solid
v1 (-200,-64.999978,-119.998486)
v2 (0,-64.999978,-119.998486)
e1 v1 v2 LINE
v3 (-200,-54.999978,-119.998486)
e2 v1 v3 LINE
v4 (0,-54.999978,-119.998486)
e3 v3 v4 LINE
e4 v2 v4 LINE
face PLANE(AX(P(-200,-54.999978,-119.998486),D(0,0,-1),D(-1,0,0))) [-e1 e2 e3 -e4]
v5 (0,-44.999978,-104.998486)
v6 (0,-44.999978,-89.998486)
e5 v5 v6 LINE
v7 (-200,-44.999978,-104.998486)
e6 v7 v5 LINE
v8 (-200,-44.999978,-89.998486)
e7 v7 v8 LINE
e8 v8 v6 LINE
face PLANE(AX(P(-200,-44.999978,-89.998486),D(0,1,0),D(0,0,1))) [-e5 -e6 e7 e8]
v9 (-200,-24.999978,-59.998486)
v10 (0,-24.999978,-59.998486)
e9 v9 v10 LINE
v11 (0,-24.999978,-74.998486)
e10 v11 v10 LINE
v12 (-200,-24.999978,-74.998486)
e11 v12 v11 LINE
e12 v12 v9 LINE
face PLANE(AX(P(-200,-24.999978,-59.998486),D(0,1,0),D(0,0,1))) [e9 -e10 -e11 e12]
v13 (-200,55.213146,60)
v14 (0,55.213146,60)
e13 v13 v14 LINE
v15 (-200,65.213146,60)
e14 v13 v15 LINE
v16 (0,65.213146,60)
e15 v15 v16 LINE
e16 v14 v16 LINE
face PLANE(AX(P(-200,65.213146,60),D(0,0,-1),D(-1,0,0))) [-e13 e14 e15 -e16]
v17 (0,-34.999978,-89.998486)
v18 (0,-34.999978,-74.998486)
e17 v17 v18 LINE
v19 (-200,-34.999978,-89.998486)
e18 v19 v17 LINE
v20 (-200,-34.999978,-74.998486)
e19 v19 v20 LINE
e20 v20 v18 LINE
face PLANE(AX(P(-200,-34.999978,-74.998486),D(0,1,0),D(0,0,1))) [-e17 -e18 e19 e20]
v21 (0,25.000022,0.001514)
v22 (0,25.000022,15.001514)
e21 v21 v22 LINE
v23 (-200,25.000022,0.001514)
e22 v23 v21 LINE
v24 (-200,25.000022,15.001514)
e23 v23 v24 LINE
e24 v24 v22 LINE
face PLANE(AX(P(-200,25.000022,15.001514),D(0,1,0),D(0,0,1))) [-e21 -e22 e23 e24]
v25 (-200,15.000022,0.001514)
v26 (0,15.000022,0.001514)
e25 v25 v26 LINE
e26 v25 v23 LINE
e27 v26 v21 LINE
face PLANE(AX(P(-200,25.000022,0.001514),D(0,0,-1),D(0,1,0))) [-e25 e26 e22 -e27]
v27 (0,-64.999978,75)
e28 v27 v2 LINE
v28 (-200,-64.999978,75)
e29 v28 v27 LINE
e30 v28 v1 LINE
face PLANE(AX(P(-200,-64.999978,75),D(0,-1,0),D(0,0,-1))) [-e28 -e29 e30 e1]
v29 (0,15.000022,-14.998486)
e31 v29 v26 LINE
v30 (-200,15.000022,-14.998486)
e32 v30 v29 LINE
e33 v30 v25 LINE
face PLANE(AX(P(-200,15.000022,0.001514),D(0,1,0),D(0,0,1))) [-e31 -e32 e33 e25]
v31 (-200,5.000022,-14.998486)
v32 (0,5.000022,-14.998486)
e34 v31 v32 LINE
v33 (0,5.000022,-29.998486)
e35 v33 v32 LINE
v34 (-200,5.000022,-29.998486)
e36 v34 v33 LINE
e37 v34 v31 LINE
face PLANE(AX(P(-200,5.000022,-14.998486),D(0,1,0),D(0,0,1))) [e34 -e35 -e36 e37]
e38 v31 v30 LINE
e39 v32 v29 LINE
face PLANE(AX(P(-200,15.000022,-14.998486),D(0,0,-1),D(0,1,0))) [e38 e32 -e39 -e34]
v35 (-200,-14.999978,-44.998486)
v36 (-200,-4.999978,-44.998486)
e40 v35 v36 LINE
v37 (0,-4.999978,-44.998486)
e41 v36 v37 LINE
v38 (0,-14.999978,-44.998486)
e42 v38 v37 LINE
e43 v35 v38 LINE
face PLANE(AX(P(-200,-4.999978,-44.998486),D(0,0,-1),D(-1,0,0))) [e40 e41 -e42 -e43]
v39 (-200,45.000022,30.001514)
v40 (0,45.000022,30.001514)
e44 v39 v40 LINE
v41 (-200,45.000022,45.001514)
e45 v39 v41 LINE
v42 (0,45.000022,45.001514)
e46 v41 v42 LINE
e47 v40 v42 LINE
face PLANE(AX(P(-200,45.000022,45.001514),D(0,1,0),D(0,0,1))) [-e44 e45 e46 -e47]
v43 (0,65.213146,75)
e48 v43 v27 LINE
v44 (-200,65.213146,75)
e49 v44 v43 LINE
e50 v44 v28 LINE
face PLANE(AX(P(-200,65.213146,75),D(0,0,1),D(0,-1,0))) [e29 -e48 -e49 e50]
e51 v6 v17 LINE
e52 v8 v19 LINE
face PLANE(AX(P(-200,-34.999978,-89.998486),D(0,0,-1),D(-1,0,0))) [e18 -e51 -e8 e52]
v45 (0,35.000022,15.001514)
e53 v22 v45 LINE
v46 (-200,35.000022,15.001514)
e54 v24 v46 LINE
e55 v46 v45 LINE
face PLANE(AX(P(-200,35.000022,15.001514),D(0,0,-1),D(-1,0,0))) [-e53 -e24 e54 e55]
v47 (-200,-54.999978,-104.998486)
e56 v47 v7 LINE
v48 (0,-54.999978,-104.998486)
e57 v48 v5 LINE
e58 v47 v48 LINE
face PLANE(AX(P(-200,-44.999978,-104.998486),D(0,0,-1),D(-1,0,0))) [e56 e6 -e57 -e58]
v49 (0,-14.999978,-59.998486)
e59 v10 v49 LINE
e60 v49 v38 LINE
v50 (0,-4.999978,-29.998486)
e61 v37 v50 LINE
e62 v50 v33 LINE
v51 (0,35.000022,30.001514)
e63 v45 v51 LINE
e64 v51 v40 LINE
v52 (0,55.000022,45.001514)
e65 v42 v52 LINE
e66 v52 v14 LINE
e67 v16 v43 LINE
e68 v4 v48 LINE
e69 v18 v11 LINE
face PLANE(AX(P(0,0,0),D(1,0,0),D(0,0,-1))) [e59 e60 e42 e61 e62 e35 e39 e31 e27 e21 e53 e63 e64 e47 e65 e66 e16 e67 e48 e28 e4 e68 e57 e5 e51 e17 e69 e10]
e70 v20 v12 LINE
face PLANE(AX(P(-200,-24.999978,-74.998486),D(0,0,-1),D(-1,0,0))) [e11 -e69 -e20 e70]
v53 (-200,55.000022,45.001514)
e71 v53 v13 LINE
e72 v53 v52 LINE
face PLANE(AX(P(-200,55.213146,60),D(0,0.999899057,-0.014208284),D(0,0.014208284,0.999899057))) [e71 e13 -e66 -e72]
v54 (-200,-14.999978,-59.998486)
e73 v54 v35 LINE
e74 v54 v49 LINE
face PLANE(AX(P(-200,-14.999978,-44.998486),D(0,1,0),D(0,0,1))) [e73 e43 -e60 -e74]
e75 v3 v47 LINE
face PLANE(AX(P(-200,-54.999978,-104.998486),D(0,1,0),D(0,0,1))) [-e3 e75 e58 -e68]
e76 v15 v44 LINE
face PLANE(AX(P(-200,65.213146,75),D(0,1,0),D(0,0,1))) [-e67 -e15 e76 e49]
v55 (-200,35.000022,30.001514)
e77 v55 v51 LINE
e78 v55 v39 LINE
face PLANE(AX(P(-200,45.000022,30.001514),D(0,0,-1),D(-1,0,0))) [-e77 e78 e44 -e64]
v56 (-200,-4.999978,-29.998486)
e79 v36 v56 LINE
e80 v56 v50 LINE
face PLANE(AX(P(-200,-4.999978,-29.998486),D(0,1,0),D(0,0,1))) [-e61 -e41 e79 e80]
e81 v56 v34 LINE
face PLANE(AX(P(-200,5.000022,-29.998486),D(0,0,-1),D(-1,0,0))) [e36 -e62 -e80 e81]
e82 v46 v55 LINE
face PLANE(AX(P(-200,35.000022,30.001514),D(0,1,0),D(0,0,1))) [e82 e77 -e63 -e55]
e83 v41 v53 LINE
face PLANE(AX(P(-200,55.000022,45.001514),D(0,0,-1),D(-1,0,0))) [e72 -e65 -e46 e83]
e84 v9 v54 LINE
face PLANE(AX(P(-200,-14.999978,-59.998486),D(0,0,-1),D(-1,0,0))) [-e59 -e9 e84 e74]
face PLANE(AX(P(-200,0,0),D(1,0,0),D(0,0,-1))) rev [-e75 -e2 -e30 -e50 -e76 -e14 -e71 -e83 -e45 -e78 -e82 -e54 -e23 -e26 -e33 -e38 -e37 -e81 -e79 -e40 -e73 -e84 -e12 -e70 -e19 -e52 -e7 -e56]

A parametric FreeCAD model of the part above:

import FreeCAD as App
import Part
import Sketcher

V = App.Vector

doc = App.newDocument("Part")
params = doc.addObject("Spreadsheet::Sheet", "Params")
for row, (alias, value) in enumerate([
    ("sketch1_width", "10 mm"),
    ("sketch1_height", "15 mm"),
    ("sketch1_length", "15 mm"),
    ("pad1_length", "200 mm"),
], start=1):
    params.set(f"A{row}", alias)
    params.set(f"B{row}", "=" + value)
    params.setAlias(f"B{row}", alias)

body = doc.addObject("PartDesign::Body", "Body")

# Sketch on YZ plane
sketch1 = doc.addObject("Sketcher::SketchObject", "Sketch")
body.addObject(sketch1)
sketch1.AttachmentSupport = (doc.YZ_Plane, [""])
sketch1.MapMode = "FlatFace"
sketch1.addGeometry([
    Part.LineSegment(V(65, 60, 0), V(65, 75, 0)),  # 0
    Part.LineSegment(V(65, 75, 0), V(-65, 75, 0)),  # 1
    Part.LineSegment(V(-65, 75, 0), V(-65, -120, 0)),  # 2
    Part.LineSegment(V(-65, -120, 0), V(-55, -120, 0)),  # 3
    Part.LineSegment(V(-55, -120, 0), V(-55, -105, 0)),  # 4
    Part.LineSegment(V(-55, -105, 0), V(-45, -105, 0)),  # 5
    Part.LineSegment(V(-45, -105, 0), V(-45, -90, 0)),  # 6
    Part.LineSegment(V(-45, -90, 0), V(-35, -90, 0)),  # 7
    Part.LineSegment(V(-35, -90, 0), V(-35, -75, 0)),  # 8
    Part.LineSegment(V(-35, -75, 0), V(-25, -75, 0)),  # 9
    Part.LineSegment(V(-25, -75, 0), V(-25, -60, 0)),  # 10
    Part.LineSegment(V(-25, -60, 0), V(-15, -60, 0)),  # 11
    Part.LineSegment(V(-15, -60, 0), V(-15, -45, 0)),  # 12
    Part.LineSegment(V(-15, -45, 0), V(-5, -45, 0)),  # 13
    Part.LineSegment(V(-5, -45, 0), V(-5, -30, 0)),  # 14
    Part.LineSegment(V(-5, -30, 0), V(5, -30, 0)),  # 15
    Part.LineSegment(V(5, -30, 0), V(5, -15, 0)),  # 16
    Part.LineSegment(V(5, -15, 0), V(15, -15, 0)),  # 17
    Part.LineSegment(V(15, -15, 0), V(15, 0, 0)),  # 18
    Part.LineSegment(V(15, 0, 0), V(25, 0, 0)),  # 19
    Part.LineSegment(V(25, 0, 0), V(25, 15, 0)),  # 20
    Part.LineSegment(V(25, 15, 0), V(35, 15, 0)),  # 21
    Part.LineSegment(V(35, 15, 0), V(35, 30, 0)),  # 22
    Part.LineSegment(V(35, 30, 0), V(45, 30, 0)),  # 23
    Part.LineSegment(V(45, 30, 0), V(45, 45, 0)),  # 24
    Part.LineSegment(V(45, 45, 0), V(55, 45, 0)),  # 25
    Part.LineSegment(V(55, 45, 0), V(55, 60, 0)),  # 26
    Part.LineSegment(V(55, 60, 0), V(65, 60, 0)),  # 27
], False)
sketch1.addConstraint([
    Sketcher.Constraint("Coincident", 0, 2, 1, 1),
    Sketcher.Constraint("Coincident", 1, 2, 2, 1),
    Sketcher.Constraint("Coincident", 2, 2, 3, 1),
    Sketcher.Constraint("Coincident", 3, 2, 4, 1),
    Sketcher.Constraint("Coincident", 4, 2, 5, 1),
    Sketcher.Constraint("Coincident", 5, 2, 6, 1),
    Sketcher.Constraint("Coincident", 6, 2, 7, 1),
    Sketcher.Constraint("Coincident", 7, 2, 8, 1),
    Sketcher.Constraint("Coincident", 8, 2, 9, 1),
    Sketcher.Constraint("Coincident", 9, 2, 10, 1),
    Sketcher.Constraint("Coincident", 10, 2, 11, 1),
    Sketcher.Constraint("Coincident", 11, 2, 12, 1),
    Sketcher.Constraint("Coincident", 12, 2, 13, 1),
    Sketcher.Constraint("Coincident", 13, 2, 14, 1),
    Sketcher.Constraint("Coincident", 14, 2, 15, 1),
    Sketcher.Constraint("Coincident", 15, 2, 16, 1),
    Sketcher.Constraint("Coincident", 16, 2, 17, 1),
    Sketcher.Constraint("Coincident", 17, 2, 18, 1),
    Sketcher.Constraint("Coincident", 18, 2, 19, 1),
    Sketcher.Constraint("Coincident", 19, 2, 20, 1),
    Sketcher.Constraint("Coincident", 20, 2, 21, 1),
    Sketcher.Constraint("Coincident", 21, 2, 22, 1),
    Sketcher.Constraint("Coincident", 22, 2, 23, 1),
    Sketcher.Constraint("Coincident", 23, 2, 24, 1),
    Sketcher.Constraint("Coincident", 24, 2, 25, 1),
    Sketcher.Constraint("Coincident", 25, 2, 26, 1),
    Sketcher.Constraint("Coincident", 26, 2, 27, 1),
    Sketcher.Constraint("Coincident", 27, 2, 0, 1),
    Sketcher.Constraint("Vertical", 0),
    Sketcher.Constraint("Horizontal", 1),
    Sketcher.Constraint("Vertical", 2),
    Sketcher.Constraint("Horizontal", 3),
    Sketcher.Constraint("Vertical", 4),
    Sketcher.Constraint("Horizontal", 5),
    Sketcher.Constraint("Vertical", 6),
    Sketcher.Constraint("Horizontal", 7),
    Sketcher.Constraint("Vertical", 8),
    Sketcher.Constraint("Horizontal", 9),
    Sketcher.Constraint("Vertical", 10),
    Sketcher.Constraint("Horizontal", 11),
    Sketcher.Constraint("Vertical", 12),
    Sketcher.Constraint("Horizontal", 13),
    Sketcher.Constraint("Vertical", 14),
    Sketcher.Constraint("Horizontal", 15),
    Sketcher.Constraint("Vertical", 16),
    Sketcher.Constraint("Horizontal", 17),
    Sketcher.Constraint("Vertical", 18),
    Sketcher.Constraint("Horizontal", 19),
    Sketcher.Constraint("Vertical", 20),
    Sketcher.Constraint("Horizontal", 21),
    Sketcher.Constraint("Vertical", 22),
    Sketcher.Constraint("Horizontal", 23),
    Sketcher.Constraint("Vertical", 24),
    Sketcher.Constraint("Horizontal", 25),
    Sketcher.Constraint("Horizontal", 27),
    Sketcher.Constraint("Equal", 3, 5),
    Sketcher.Constraint("Equal", 5, 7),
    Sketcher.Constraint("Equal", 7, 9),
    Sketcher.Constraint("Equal", 9, 11),
    Sketcher.Constraint("Equal", 11, 13),
    Sketcher.Constraint("Equal", 13, 15),
    Sketcher.Constraint("Equal", 15, 17),
    Sketcher.Constraint("Equal", 17, 19),
    Sketcher.Constraint("Equal", 19, 21),
    Sketcher.Constraint("Equal", 21, 23),
    Sketcher.Constraint("Equal", 23, 25),
    Sketcher.Constraint("Equal", 25, 27),
    Sketcher.Constraint("Equal", 0, 4),
    Sketcher.Constraint("Equal", 4, 6),
    Sketcher.Constraint("Equal", 6, 8),
    Sketcher.Constraint("Equal", 8, 10),
    Sketcher.Constraint("Equal", 10, 12),
    Sketcher.Constraint("Equal", 12, 14),
    Sketcher.Constraint("Equal", 14, 16),
    Sketcher.Constraint("Equal", 16, 18),
    Sketcher.Constraint("Equal", 18, 20),
    Sketcher.Constraint("Equal", 20, 22),
    Sketcher.Constraint("Equal", 22, 24),
    Sketcher.Constraint("DistanceX", 3, 1, 3, 2, 10.0),
    Sketcher.Constraint("DistanceY", 0, 1, 0, 2, 15.0),
    Sketcher.Constraint("Distance", 26, 15.0),
    Sketcher.Constraint("DistanceY", -1, 1, 0, 2, 75.0),
    Sketcher.Constraint("DistanceX", 1, 2, 1, 1, 130.213124),
    Sketcher.Constraint("DistanceX", 1, 2, -1, 1, 64.999978),
])
sketch1.setExpression("Constraints[78]", "Params.sketch1_width")
sketch1.setExpression("Constraints[79]", "Params.sketch1_height")
sketch1.setExpression("Constraints[80]", "Params.sketch1_length")
pad1 = doc.addObject("PartDesign::Pad", "Pad")
body.addObject(pad1)
pad1.Profile = sketch1
pad1.setExpression("Length", "Params.pad1_length")
pad1.Reversed = True

doc.recompute()
